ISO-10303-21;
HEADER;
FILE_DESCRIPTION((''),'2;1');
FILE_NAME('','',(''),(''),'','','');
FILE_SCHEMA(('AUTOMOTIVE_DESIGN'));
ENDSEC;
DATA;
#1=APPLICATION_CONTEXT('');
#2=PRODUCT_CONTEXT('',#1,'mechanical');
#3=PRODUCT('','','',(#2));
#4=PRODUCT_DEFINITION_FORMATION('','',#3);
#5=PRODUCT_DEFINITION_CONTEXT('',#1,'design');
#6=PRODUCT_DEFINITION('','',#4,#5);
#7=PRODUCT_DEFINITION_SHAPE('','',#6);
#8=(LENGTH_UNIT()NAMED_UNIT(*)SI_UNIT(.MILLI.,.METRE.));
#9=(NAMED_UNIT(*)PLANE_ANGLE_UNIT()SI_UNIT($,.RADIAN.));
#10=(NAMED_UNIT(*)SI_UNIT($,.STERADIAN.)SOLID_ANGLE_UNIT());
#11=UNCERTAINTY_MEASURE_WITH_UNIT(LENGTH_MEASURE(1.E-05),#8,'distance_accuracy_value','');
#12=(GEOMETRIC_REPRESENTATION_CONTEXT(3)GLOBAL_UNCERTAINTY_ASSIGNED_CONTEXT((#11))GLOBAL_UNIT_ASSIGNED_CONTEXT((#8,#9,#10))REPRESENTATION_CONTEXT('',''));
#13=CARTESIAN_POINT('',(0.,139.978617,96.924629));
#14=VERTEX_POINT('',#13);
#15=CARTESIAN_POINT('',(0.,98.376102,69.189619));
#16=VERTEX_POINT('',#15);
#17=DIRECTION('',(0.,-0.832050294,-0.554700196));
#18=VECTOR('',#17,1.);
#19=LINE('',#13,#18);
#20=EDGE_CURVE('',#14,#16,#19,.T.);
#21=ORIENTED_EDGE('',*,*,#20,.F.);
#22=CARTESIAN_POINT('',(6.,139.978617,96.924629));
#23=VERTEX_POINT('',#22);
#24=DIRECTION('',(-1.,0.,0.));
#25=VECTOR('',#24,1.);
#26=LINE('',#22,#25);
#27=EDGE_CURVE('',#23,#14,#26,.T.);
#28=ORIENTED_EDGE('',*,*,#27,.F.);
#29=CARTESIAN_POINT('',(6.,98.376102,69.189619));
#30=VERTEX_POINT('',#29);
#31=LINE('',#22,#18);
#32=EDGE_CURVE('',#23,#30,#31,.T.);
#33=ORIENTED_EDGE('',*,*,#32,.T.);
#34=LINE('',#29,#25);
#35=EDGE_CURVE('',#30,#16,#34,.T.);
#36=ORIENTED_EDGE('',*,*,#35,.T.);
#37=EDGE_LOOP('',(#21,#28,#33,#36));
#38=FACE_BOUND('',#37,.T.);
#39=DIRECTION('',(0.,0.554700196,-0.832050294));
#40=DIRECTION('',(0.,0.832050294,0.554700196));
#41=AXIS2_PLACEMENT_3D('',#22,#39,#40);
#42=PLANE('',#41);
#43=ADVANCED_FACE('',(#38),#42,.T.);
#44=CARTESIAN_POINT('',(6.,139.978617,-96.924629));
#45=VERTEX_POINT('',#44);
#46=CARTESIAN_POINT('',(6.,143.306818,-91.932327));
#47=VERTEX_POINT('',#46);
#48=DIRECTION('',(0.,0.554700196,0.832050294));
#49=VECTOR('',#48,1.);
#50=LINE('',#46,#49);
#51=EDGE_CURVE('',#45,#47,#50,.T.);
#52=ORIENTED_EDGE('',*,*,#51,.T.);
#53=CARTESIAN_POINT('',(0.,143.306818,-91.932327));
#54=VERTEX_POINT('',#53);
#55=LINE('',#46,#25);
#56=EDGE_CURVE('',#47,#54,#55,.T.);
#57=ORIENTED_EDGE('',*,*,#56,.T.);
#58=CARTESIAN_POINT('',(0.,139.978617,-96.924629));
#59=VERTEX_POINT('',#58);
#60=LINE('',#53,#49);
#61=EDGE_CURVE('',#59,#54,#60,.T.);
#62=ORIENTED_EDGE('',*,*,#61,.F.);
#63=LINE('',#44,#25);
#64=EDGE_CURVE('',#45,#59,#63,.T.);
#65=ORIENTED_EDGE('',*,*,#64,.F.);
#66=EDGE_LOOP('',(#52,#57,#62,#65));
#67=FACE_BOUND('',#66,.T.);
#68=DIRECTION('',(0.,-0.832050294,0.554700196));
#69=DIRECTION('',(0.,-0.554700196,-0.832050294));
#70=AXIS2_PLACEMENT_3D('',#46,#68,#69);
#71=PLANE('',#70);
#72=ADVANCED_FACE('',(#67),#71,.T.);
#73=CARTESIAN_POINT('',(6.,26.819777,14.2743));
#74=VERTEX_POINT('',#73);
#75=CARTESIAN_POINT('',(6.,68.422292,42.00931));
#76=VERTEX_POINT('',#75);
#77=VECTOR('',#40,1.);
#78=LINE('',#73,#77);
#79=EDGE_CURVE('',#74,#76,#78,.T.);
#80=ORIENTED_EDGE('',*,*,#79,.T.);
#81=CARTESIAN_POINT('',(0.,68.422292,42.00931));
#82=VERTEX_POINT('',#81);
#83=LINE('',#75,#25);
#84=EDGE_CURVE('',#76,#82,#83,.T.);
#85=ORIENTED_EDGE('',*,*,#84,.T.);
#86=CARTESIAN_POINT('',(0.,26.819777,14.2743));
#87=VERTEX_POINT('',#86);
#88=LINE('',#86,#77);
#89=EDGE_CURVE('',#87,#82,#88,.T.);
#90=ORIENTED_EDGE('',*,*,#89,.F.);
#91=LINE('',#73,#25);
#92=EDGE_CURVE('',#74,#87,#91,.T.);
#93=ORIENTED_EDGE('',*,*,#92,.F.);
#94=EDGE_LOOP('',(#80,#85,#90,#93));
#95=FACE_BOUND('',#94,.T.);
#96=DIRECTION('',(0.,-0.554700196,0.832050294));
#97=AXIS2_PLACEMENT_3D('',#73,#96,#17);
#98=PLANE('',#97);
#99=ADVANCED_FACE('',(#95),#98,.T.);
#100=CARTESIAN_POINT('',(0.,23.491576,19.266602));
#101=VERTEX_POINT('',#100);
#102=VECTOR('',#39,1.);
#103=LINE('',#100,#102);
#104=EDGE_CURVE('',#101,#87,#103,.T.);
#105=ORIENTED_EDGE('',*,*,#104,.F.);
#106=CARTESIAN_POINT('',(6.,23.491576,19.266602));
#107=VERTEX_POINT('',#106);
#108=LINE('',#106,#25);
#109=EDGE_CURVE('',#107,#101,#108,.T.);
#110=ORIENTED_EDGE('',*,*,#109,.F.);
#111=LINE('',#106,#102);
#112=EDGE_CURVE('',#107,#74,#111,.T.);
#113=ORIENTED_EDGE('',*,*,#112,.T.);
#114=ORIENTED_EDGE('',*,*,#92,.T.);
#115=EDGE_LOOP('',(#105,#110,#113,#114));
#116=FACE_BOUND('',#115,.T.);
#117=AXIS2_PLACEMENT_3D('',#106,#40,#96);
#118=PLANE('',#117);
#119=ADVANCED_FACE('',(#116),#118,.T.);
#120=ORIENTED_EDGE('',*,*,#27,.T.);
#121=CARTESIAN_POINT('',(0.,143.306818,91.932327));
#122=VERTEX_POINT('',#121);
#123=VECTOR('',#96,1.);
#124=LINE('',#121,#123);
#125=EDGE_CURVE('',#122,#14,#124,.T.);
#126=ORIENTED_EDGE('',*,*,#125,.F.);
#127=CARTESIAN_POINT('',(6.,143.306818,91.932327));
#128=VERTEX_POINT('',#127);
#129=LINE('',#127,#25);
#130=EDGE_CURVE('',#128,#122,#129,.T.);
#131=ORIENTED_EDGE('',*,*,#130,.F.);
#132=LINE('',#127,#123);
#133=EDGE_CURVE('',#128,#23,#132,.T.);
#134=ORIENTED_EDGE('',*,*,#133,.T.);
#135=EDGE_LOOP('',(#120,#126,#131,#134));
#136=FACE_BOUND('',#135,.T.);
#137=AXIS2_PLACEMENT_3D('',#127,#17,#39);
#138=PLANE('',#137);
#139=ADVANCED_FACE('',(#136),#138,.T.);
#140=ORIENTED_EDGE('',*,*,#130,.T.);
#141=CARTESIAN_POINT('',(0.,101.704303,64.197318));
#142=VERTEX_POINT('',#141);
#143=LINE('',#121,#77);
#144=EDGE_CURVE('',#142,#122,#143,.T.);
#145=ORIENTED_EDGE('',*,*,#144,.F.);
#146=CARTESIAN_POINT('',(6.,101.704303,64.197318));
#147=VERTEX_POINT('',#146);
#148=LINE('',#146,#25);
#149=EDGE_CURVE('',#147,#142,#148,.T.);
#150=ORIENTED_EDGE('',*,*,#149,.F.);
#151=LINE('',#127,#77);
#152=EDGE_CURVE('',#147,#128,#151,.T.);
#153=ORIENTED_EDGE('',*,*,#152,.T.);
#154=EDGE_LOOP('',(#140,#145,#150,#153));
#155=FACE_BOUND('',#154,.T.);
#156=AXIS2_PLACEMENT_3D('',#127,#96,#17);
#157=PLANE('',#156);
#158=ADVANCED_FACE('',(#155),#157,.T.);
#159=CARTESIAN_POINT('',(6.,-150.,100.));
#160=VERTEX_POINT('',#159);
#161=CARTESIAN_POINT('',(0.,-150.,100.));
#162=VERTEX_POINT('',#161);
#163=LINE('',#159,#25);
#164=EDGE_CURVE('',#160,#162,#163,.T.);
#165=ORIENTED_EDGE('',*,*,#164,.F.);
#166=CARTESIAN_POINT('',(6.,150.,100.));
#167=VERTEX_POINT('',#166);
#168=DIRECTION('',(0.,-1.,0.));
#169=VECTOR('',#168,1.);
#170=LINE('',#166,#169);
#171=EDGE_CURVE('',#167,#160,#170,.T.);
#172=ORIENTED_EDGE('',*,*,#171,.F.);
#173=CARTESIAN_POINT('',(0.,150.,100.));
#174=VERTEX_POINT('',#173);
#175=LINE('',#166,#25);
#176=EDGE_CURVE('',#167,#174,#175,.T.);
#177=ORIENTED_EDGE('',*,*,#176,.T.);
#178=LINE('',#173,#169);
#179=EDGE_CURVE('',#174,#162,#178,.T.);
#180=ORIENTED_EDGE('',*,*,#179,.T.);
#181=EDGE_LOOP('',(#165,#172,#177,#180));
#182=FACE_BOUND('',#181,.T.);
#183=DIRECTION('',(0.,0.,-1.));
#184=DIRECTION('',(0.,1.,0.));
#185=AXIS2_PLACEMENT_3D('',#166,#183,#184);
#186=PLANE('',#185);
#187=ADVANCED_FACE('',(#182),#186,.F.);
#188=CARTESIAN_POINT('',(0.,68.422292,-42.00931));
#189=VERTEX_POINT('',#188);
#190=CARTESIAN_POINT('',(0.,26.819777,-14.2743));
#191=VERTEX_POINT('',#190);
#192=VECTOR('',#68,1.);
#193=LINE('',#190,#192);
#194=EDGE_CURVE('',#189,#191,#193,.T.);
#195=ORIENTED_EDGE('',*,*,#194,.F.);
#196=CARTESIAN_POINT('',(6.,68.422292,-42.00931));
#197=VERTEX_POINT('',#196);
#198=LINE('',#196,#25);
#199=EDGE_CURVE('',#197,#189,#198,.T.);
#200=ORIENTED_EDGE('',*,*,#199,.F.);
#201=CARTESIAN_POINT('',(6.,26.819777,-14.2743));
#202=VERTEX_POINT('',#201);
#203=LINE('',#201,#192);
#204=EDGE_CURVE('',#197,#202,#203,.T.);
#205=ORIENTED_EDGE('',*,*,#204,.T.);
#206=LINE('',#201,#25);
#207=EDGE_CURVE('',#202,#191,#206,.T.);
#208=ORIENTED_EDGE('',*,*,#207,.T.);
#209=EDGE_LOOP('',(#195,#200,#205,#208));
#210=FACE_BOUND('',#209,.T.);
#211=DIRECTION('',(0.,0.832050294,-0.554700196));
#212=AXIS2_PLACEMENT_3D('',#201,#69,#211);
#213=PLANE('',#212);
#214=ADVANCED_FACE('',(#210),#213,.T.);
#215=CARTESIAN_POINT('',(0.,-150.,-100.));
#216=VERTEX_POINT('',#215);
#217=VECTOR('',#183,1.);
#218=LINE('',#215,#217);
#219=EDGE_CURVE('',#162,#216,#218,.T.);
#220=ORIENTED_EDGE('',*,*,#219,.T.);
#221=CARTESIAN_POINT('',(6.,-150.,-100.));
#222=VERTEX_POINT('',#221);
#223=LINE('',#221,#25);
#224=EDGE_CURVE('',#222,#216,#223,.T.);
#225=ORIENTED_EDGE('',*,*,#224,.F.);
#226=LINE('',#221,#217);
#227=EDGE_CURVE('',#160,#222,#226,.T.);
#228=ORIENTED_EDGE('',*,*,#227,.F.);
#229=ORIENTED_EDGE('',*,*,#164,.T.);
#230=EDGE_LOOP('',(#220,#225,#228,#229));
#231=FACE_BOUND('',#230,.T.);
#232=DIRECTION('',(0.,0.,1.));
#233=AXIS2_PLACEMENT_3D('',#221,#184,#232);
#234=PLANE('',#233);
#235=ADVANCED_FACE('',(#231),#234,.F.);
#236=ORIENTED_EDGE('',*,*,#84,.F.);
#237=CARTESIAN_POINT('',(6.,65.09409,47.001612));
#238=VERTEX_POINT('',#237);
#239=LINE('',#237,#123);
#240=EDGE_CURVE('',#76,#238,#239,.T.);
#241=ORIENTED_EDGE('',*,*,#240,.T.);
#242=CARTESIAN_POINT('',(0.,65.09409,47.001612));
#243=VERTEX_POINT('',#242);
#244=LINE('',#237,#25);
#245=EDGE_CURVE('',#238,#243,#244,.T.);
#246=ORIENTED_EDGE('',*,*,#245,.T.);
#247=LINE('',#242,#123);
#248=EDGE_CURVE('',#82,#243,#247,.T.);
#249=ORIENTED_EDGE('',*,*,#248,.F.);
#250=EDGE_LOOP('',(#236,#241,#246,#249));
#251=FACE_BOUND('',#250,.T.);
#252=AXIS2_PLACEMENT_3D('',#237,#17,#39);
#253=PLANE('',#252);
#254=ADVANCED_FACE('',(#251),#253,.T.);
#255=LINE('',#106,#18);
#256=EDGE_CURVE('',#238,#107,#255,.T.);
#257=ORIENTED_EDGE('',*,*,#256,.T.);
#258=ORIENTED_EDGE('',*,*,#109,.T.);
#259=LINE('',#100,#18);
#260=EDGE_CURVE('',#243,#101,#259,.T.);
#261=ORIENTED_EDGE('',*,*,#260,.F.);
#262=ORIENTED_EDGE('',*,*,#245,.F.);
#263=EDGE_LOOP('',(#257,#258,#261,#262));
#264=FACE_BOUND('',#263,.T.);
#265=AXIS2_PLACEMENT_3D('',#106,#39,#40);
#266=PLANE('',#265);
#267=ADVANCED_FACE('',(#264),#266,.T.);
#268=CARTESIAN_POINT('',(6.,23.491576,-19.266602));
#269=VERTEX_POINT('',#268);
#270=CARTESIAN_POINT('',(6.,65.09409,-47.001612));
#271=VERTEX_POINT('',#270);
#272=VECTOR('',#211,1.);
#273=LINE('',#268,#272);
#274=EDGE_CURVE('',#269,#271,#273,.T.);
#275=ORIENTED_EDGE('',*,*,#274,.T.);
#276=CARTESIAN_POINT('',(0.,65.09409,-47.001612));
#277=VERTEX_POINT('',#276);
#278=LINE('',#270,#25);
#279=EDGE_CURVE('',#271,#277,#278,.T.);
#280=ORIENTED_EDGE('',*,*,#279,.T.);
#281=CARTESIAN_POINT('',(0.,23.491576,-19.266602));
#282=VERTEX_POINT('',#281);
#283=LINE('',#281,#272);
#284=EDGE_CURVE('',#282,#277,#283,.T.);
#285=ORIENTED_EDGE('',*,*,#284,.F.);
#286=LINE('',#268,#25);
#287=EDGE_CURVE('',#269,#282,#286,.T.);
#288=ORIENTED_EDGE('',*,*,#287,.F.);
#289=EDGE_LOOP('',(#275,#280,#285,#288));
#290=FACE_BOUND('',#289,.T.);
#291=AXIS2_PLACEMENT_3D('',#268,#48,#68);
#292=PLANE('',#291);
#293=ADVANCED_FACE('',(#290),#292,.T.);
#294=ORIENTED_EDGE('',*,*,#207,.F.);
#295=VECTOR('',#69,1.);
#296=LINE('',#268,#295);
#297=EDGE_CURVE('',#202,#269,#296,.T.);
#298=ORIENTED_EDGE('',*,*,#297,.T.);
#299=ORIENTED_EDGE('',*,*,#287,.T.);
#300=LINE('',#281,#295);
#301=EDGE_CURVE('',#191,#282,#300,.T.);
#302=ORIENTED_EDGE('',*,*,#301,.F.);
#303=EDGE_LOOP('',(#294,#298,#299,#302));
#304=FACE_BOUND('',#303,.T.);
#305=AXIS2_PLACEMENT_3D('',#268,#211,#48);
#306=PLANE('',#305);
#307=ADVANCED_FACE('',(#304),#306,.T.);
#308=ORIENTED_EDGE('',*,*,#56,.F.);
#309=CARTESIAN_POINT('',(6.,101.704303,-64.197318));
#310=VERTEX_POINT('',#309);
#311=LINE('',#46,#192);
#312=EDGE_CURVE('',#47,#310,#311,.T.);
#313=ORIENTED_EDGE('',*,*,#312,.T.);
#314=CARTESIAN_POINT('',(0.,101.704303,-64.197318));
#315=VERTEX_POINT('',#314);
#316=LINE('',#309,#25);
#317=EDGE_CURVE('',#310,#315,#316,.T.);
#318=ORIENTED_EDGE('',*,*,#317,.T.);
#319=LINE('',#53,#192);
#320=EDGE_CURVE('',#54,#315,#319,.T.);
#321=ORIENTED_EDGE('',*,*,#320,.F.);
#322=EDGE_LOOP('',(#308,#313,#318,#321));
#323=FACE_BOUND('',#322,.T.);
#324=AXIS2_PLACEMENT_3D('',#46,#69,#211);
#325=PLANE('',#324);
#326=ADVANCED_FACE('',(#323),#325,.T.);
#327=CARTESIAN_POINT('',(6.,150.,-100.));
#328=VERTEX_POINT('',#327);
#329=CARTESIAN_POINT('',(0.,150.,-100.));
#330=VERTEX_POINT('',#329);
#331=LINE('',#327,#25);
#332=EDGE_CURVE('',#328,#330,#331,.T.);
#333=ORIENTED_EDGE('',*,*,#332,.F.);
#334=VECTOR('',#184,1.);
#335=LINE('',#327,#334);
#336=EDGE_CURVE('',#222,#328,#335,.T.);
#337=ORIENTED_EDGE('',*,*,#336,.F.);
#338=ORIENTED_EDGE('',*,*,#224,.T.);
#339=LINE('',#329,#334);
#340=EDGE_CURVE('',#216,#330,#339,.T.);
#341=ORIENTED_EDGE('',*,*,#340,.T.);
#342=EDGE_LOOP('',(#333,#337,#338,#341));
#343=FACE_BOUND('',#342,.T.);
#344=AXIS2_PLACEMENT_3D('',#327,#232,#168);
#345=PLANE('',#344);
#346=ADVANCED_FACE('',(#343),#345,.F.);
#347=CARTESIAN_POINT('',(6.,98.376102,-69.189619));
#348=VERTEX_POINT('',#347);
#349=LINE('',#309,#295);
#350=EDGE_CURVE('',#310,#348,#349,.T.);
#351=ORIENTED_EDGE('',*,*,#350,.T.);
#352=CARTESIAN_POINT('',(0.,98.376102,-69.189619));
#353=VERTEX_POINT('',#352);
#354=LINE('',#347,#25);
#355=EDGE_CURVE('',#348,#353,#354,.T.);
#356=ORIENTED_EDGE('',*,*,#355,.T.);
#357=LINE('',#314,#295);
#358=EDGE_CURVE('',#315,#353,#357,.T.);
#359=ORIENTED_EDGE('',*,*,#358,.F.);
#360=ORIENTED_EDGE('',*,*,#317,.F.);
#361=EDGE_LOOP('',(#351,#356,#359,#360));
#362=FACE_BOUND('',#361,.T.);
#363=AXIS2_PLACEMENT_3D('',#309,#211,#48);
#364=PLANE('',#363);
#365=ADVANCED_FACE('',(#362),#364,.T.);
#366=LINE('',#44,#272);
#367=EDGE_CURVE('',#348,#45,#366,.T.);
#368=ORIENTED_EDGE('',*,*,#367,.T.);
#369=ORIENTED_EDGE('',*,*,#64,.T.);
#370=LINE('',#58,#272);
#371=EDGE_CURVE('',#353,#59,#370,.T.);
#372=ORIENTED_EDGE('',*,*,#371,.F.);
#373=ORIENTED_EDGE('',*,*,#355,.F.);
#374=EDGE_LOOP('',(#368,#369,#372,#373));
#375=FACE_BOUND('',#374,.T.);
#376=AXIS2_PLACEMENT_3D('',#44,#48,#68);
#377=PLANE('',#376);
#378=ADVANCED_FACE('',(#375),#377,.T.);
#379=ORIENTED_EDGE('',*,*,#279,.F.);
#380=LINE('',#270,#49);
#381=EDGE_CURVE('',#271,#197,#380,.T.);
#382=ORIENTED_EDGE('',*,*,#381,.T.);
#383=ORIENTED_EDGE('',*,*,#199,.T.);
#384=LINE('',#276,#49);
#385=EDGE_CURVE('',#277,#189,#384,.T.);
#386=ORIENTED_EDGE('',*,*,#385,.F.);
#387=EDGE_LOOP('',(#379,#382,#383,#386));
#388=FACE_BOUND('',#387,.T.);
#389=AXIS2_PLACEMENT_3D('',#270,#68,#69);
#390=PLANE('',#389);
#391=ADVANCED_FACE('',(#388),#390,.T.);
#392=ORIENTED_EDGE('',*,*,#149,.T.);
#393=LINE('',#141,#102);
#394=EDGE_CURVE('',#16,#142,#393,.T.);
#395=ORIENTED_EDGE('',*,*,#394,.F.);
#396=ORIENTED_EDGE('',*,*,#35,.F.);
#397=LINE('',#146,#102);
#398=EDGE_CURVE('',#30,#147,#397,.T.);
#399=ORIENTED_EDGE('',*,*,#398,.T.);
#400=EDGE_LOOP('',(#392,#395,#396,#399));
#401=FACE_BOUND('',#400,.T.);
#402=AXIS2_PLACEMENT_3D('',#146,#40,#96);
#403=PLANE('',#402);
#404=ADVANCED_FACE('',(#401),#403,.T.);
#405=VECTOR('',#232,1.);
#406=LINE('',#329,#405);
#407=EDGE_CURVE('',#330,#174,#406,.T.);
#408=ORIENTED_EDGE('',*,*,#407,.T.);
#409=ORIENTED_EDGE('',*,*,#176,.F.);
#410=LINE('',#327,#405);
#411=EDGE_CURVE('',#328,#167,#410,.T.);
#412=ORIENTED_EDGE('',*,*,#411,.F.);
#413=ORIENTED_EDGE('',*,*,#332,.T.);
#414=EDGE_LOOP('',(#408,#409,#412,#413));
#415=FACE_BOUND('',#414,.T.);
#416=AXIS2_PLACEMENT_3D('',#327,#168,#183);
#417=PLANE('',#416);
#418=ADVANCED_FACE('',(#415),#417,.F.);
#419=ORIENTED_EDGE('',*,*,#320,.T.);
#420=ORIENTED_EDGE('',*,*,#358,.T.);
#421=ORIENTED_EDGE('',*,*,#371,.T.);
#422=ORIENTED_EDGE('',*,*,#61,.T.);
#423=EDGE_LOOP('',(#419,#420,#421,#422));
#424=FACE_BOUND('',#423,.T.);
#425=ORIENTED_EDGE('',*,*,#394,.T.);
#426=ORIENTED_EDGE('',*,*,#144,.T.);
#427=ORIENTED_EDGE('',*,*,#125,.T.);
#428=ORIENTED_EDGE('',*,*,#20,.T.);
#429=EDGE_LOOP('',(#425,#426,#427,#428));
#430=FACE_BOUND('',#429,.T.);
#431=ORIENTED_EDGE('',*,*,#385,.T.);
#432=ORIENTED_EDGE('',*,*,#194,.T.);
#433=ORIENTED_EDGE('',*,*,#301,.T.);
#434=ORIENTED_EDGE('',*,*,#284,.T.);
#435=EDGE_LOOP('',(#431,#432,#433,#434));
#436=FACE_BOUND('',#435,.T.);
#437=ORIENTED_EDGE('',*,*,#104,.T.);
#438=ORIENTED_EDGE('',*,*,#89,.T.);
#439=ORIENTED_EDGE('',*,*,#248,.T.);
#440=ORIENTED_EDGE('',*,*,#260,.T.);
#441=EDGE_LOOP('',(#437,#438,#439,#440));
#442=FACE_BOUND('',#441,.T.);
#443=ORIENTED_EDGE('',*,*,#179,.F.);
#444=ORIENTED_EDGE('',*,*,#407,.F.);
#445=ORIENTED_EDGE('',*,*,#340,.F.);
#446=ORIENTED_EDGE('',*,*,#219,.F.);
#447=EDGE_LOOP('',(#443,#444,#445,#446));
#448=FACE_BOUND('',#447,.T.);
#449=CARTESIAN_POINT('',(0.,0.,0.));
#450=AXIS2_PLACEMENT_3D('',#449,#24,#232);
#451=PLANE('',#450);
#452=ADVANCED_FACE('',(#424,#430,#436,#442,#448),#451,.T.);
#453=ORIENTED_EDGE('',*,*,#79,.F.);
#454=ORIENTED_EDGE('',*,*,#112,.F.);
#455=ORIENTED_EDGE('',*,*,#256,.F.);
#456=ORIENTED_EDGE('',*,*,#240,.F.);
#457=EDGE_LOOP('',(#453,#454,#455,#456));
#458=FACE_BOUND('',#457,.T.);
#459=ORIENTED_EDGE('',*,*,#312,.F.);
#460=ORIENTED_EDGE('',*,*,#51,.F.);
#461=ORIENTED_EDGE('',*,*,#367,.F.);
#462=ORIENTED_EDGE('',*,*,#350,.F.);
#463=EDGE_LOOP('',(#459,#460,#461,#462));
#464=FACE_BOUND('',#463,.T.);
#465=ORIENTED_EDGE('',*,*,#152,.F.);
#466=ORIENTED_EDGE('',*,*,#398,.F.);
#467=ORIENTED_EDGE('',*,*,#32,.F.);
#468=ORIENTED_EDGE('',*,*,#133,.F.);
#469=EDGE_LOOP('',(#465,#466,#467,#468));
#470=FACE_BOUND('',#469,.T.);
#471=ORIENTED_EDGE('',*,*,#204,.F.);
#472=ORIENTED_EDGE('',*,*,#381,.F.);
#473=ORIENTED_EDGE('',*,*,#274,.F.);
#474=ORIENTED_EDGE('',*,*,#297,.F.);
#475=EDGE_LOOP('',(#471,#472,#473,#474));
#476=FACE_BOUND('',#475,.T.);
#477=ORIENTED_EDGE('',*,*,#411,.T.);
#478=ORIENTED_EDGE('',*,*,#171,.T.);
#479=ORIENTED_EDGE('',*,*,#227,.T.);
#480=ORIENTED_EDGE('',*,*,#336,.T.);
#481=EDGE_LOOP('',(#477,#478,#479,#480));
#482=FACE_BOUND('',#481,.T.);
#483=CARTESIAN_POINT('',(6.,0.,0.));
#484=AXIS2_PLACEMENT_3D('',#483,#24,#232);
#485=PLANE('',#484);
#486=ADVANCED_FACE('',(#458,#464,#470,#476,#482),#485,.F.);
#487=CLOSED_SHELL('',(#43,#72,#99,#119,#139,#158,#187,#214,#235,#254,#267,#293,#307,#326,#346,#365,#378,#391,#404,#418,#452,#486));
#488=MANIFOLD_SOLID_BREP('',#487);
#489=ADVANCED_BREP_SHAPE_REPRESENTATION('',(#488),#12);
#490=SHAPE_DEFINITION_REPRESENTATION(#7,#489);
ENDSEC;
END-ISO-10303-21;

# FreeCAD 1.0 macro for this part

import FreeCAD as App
import Part
import Sketcher

V = App.Vector
Q = App.Units.Quantity


def add_polygon(sketch, points):
    """Adds a closed chain of lines whose ends are joined by coincident constraints."""
    first, n = sketch.GeometryCount, len(points)
    for a, b in zip(points, points[1:] + points[:1]):
        sketch.addGeometry(Part.LineSegment(App.Vector(*a, 0), App.Vector(*b, 0)), False)
    for i in range(n):
        sketch.addConstraint(Sketcher.Constraint("Coincident", first + i, 2, first + (i + 1) % n, 1))

doc = App.newDocument("Part")
body = doc.addObject("PartDesign::Body", "Body")

sketch1 = body.newObject("Sketcher::SketchObject", "Sketch")
sketch1.AttachmentSupport = (doc.getObject("YZ_Plane"), [""])
sketch1.MapMode = "FlatFace"
add_polygon(sketch1, [(150, 100), (-150, 100), (-150, -100), (150, -100)])
add_polygon(sketch1, [(26.819777, 14.2743), (23.491576, 19.266602), (65.09409, 47.001612), (68.422292, 42.00931)])
add_polygon(sketch1, [(65.09409, -47.001612), (23.491576, -19.266602), (26.819777, -14.2743), (68.422292, -42.00931)])
add_polygon(sketch1, [(139.978617, 96.924629), (143.306818, 91.932327), (101.704303, 64.197318), (98.376102, 69.189619)])
add_polygon(sketch1, [(143.306818, -91.932327), (139.978617, -96.924629), (98.376102, -69.189619), (101.704303, -64.197318)])
sketch1.addConstraint([
    Sketcher.Constraint("Horizontal", 0),
    Sketcher.Constraint("Vertical", 1),
    Sketcher.Constraint("Horizontal", 2),
    Sketcher.Constraint("Vertical", 3),
    Sketcher.Constraint("Symmetric", 0, 2, 2, 2, -1, 1),
    Sketcher.Constraint("Symmetric", 4, 2, 8, 2, -1),
    Sketcher.Constraint("Symmetric", 7, 2, 9, 2, -1),
    Sketcher.Constraint("Symmetric", 6, 2, 10, 2, -1),
    Sketcher.Constraint("Symmetric", 5, 2, 11, 2, -1),
    Sketcher.Constraint("Symmetric", 15, 2, 16, 2, -1),
    Sketcher.Constraint("Symmetric", 14, 2, 17, 2, -1),
    Sketcher.Constraint("Symmetric", 13, 2, 18, 2, -1),
    Sketcher.Constraint("Symmetric", 12, 2, 19, 2, -1),
    Sketcher.Constraint("Perpendicular", 4, 5),
    Sketcher.Constraint("Perpendicular", 5, 6),
    Sketcher.Constraint("Perpendicular", 6, 7),
    Sketcher.Constraint("Perpendicular", 7, 12),
    Sketcher.Constraint("Perpendicular", 12, 13),
    Sketcher.Constraint("Perpendicular", 13, 14),
    Sketcher.Constraint("Perpendicular", 14, 15),
    Sketcher.Constraint("Equal", 11, 12),
    Sketcher.Constraint("Equal", 10, 13),
    Sketcher.Constraint("DistanceX", 0, 2, 0, 1, Q("300 mm")),
    Sketcher.Constraint("DistanceY", 1, 2, 1, 1, Q("200 mm")),
    Sketcher.Constraint("Distance", 4, Q("6 mm")),
    Sketcher.Constraint("Distance", 5, Q("50 mm")),
    Sketcher.Constraint("DistanceY", -1, 1, 4, 2, Q("19.266602 mm")),
    Sketcher.Constraint("DistanceY", -1, 1, 7, 2, Q("14.2743 mm")),
    Sketcher.Constraint("DistanceX", -1, 1, 5, 2, Q("65.09409 mm")),
    Sketcher.Constraint("DistanceX", -1, 1, 12, 2, Q("143.306818 mm")),
    Sketcher.Constraint("DistanceY", -1, 1, 14, 2, Q("69.189619 mm")),
])
pad1 = body.newObject("PartDesign::Pad", "Pad")
pad1.Profile = sketch1
pad1.Length = 6

doc.recompute()
